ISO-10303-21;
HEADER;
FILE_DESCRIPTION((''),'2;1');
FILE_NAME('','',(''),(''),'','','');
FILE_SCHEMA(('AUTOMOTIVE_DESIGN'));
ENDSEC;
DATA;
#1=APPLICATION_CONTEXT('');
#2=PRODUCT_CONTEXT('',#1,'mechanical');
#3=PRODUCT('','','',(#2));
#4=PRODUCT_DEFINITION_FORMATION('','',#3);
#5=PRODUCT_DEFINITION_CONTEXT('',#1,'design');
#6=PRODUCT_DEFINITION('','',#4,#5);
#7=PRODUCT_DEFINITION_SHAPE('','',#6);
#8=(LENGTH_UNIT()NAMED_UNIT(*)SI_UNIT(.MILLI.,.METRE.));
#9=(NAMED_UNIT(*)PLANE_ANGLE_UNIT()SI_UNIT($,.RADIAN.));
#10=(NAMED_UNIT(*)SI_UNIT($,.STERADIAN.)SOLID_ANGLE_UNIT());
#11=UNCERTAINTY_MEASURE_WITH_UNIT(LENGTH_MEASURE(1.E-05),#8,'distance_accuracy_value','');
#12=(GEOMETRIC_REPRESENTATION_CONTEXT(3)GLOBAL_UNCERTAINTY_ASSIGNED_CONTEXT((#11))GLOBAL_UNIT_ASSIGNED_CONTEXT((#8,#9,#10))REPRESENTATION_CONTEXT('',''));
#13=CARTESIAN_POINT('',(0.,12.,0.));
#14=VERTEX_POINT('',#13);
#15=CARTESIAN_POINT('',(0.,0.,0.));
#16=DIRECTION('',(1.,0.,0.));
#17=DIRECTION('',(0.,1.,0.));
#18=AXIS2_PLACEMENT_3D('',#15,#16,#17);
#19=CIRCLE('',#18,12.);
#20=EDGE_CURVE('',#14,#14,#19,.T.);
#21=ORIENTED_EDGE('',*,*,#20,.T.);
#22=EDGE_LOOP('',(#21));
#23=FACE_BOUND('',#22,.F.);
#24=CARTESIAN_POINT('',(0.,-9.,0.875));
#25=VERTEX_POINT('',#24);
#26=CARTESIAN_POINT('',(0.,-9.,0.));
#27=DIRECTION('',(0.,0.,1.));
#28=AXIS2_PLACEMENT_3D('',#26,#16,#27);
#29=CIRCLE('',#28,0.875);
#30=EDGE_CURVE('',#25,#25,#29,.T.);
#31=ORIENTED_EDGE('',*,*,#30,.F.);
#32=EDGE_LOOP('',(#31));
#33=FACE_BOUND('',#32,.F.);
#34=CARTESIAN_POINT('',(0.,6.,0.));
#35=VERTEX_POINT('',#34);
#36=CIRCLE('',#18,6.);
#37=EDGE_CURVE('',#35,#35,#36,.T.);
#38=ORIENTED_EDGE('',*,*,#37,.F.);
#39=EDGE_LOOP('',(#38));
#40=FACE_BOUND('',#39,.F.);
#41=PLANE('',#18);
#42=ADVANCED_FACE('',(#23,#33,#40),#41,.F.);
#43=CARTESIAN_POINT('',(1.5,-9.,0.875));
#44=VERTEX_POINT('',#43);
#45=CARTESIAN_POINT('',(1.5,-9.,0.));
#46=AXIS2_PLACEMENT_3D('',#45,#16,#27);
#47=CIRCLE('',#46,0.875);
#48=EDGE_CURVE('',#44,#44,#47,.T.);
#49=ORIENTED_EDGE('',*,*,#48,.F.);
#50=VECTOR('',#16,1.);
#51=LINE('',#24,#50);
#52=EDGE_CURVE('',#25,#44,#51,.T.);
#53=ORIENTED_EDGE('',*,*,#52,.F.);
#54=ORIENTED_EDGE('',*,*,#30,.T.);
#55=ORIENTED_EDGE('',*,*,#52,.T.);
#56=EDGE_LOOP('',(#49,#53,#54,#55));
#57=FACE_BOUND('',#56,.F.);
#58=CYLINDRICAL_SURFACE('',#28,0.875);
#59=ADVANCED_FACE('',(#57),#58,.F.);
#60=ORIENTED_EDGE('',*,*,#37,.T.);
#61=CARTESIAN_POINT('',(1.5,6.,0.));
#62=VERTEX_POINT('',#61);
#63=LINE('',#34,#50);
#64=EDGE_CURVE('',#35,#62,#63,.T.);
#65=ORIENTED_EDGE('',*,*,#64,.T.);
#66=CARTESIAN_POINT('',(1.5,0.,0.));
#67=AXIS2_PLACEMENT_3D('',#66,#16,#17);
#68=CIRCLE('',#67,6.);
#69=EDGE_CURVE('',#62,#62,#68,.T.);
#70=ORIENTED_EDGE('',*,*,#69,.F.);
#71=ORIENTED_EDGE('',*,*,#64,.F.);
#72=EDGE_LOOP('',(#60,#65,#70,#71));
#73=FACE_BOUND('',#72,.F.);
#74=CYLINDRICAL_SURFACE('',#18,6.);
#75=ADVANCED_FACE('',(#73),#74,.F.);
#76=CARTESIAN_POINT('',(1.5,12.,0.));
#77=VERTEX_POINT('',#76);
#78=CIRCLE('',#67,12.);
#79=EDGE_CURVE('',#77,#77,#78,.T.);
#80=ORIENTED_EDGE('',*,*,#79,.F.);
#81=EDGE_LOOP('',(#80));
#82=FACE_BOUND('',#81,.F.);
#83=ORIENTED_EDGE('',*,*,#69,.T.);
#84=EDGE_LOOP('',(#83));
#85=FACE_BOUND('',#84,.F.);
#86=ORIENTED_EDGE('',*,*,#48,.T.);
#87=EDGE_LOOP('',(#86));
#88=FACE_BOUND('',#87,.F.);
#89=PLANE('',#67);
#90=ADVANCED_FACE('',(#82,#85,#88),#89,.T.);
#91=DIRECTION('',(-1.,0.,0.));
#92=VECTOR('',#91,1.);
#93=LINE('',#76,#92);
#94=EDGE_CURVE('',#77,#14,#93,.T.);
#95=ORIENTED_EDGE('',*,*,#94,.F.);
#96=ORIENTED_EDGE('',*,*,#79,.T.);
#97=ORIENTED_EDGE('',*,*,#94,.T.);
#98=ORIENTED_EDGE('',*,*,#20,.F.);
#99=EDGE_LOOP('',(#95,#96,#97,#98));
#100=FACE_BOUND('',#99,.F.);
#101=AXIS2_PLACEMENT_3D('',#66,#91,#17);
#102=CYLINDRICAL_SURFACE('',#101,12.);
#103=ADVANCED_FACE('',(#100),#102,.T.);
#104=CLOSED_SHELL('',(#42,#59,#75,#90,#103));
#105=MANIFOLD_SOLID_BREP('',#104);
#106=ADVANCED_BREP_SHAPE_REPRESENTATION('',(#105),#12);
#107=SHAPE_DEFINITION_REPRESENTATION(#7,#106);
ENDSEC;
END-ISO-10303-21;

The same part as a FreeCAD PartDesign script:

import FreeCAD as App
import Part
import Sketcher

V = App.Vector


def add_polygon(sketch, points):
    """Adds a closed chain of lines whose ends are joined by coincident constraints."""
    first, n = sketch.GeometryCount, len(points)
    for a, b in zip(points, points[1:] + points[:1]):
        sketch.addGeometry(Part.LineSegment(App.Vector(*a, 0), App.Vector(*b, 0)), False)
    for i in range(n):
        sketch.addConstraint(Sketcher.Constraint("Coincident", first + i, 2, first + (i + 1) % n, 1))

doc = App.newDocument("Part")
body = doc.addObject("PartDesign::Body", "Body")

sketch1 = body.newObject("Sketcher::SketchObject", "Sketch")
sketch1.AttachmentSupport = (doc.getObject("XY_Plane"), [""])
sketch1.MapMode = "FlatFace"
add_polygon(sketch1, [(1.5, 12), (0, 12), (0, 6), (1.5, 6)])
sketch1.addConstraint([
    Sketcher.Constraint("Horizontal", 0),
    Sketcher.Constraint("Vertical", 1),
    Sketcher.Constraint("Horizontal", 2),
    Sketcher.Constraint("Vertical", 3),
    Sketcher.Constraint("PointOnObject", 0, 2, -2),
    Sketcher.Constraint("DistanceY", 1, 2, 1, 1, 6.0),
    Sketcher.Constraint("DistanceX", 0, 2, 0, 1, 1.5),
    Sketcher.Constraint("DistanceY", -1, 1, 0, 2, 12.0),
])
revolution = body.newObject("PartDesign::Revolution", "Revolution")
revolution.Profile = sketch1
revolution.ReferenceAxis = (sketch1, ["H_Axis"])
revolution.Angle = 360

sketch2 = body.newObject("Sketcher::SketchObject", "Sketch001")
sketch2.AttachmentSupport = (doc.getObject("YZ_Plane"), [""])
sketch2.MapMode = "FlatFace"
sketch2.addGeometry(Part.Circle(V(-9, 0, 0), V(0, 0, 1), 0.875), False)
sketch2.addConstraint([
    Sketcher.Constraint("PointOnObject", 0, 3, -1),
    Sketcher.Constraint("Diameter", 0, 1.75),
    Sketcher.Constraint("DistanceX", 0, 3, -1, 1, 9.0),
])
doc.recompute()
hole = body.newObject("PartDesign::Hole", "Hole")
hole.Profile = sketch2
hole.ThreadType = "None"
hole.Diameter = 1.75
hole.DepthType = "Dimension"
hole.Depth = 1.5
hole.DrillPoint = "Flat"
hole.Reversed = True

doc.recompute()
